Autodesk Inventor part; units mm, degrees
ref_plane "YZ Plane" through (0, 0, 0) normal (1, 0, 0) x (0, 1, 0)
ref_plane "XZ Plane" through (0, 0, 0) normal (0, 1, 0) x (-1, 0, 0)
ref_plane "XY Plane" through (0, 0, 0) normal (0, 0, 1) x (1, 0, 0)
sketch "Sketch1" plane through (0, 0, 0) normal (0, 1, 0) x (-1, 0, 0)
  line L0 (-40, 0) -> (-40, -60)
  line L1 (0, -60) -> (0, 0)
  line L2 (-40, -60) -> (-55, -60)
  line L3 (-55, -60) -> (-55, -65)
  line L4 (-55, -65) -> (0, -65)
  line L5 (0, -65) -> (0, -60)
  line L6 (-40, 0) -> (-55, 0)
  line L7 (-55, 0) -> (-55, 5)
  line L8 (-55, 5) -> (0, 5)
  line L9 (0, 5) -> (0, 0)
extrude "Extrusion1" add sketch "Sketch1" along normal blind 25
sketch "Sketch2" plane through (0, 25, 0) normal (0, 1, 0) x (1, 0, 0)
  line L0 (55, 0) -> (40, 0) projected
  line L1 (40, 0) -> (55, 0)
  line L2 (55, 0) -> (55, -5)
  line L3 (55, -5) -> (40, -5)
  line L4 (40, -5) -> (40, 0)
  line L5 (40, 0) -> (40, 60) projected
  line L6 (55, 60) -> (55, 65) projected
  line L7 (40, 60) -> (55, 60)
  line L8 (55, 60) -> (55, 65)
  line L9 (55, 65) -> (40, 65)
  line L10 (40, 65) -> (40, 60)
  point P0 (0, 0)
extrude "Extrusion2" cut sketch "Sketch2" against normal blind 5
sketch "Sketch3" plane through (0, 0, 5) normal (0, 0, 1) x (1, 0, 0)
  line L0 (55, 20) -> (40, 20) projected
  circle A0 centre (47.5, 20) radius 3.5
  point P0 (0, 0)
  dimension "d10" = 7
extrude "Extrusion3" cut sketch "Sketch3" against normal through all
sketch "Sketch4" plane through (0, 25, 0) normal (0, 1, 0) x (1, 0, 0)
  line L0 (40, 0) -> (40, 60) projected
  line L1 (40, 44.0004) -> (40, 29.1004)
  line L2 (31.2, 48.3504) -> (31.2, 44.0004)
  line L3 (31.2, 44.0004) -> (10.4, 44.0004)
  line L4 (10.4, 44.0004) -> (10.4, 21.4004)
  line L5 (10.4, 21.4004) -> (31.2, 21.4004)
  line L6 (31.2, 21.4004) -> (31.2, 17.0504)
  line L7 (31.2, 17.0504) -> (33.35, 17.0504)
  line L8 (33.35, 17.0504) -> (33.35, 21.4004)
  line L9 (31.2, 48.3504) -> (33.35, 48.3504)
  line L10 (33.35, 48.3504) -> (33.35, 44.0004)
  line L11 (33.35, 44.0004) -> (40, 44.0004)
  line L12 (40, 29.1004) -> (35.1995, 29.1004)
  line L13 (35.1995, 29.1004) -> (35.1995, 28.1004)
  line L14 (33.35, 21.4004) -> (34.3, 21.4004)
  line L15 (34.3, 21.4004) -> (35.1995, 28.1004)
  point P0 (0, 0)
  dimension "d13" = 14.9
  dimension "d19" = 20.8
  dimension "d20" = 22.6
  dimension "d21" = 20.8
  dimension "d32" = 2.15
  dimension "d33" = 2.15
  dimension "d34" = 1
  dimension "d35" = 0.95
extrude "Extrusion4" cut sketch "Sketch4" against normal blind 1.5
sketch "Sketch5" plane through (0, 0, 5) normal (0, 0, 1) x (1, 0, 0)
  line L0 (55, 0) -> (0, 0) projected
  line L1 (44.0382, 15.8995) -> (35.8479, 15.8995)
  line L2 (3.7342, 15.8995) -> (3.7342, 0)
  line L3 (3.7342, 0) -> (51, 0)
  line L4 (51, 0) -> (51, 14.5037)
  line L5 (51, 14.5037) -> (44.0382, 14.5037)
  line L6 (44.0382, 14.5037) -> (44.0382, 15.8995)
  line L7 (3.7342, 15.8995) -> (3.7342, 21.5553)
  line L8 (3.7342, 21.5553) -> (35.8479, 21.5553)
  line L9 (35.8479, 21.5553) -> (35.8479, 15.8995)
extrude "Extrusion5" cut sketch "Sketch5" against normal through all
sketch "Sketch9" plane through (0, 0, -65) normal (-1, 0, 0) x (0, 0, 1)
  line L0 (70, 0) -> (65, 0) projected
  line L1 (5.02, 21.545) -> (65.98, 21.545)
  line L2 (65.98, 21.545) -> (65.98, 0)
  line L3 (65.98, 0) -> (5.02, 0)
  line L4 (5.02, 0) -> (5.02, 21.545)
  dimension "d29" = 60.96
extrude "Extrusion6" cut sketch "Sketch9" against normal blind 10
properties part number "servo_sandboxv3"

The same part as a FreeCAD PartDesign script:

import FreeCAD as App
import Part
import Sketcher
Q = App.Units.Quantity

doc = App.newDocument("Part")
body = doc.addObject("PartDesign::Body", "Body")

# Sketch on XZ plane
sketch1 = body.newObject("Sketcher::SketchObject", "Sketch")
sketch1.AttachmentSupport = (doc.getObject("XZ_Plane"), [""])
sketch1.MapMode = "FlatFace"
sketch1.addGeometry([
    Part.LineSegment(App.Vector(55, 0, 0), App.Vector(40, 0, 0)),  # 0
    Part.LineSegment(App.Vector(40, 0, 0), App.Vector(40, -60, 0)),  # 1
    Part.LineSegment(App.Vector(40, -60, 0), App.Vector(55, -60, 0)),  # 2
    Part.LineSegment(App.Vector(55, -60, 0), App.Vector(55, -65, 0)),  # 3
    Part.LineSegment(App.Vector(55, -65, 0), App.Vector(0, -65, 0)),  # 4
    Part.LineSegment(App.Vector(0, -65, 0), App.Vector(0, 5, 0)),  # 5
    Part.LineSegment(App.Vector(0, 5, 0), App.Vector(55, 5, 0)),  # 6
    Part.LineSegment(App.Vector(55, 5, 0), App.Vector(55, 0, 0)),  # 7
], False)
sketch1.addConstraint([
    Sketcher.Constraint("Coincident", 0, 2, 1, 1),
    Sketcher.Constraint("Coincident", 1, 2, 2, 1),
    Sketcher.Constraint("Coincident", 2, 2, 3, 1),
    Sketcher.Constraint("Coincident", 3, 2, 4, 1),
    Sketcher.Constraint("Coincident", 4, 2, 5, 1),
    Sketcher.Constraint("Coincident", 5, 2, 6, 1),
    Sketcher.Constraint("Coincident", 6, 2, 7, 1),
    Sketcher.Constraint("Coincident", 7, 2, 0, 1),
    Sketcher.Constraint("Horizontal", 0),
    Sketcher.Constraint("Vertical", 1),
    Sketcher.Constraint("Horizontal", 2),
    Sketcher.Constraint("Vertical", 3),
    Sketcher.Constraint("Horizontal", 4),
    Sketcher.Constraint("Vertical", 5),
    Sketcher.Constraint("Horizontal", 6),
    Sketcher.Constraint("Vertical", 7),
    Sketcher.Constraint("PointOnObject", 0, 2, -1),
    Sketcher.Constraint("PointOnObject", 4, 2, -2),
    Sketcher.Constraint("Vertical", 3, 2, 6, 2),
    Sketcher.Constraint("Equal", 3, 7),
    Sketcher.Constraint("DistanceX", 0, 2, 0, 1, Q("15 mm")),
    Sketcher.Constraint("DistanceX", 4, 2, 4, 1, Q("55 mm")),
    Sketcher.Constraint("DistanceY", 1, 2, 1, 1, Q("60 mm")),
    Sketcher.Constraint("DistanceY", 3, 2, 3, 1, Q("5 mm")),
])
pad1 = body.newObject("PartDesign::Pad", "Pad")
pad1.Profile = sketch1
pad1.Length = 25
pad1.Reversed = True

# Sketch on XZ plane
sketch2 = body.newObject("Sketcher::SketchObject", "Sketch001")
sketch2.AttachmentSupport = (doc.getObject("XZ_Plane"), [""])
sketch2.MapMode = "FlatFace"
sketch2.AttachmentOffset = App.Placement(App.Vector(0, 0, -25), App.Rotation())
sketch2.addGeometry([
    Part.LineSegment(App.Vector(55, 5, 0), App.Vector(55, 0, 0)),  # 0
    Part.LineSegment(App.Vector(55, 0, 0), App.Vector(40, 0, 0)),  # 1
    Part.LineSegment(App.Vector(40, 0, 0), App.Vector(40, 5, 0)),  # 2
    Part.LineSegment(App.Vector(40, 5, 0), App.Vector(55, 5, 0)),  # 3
    Part.LineSegment(App.Vector(40, -65, 0), App.Vector(40, -60, 0)),  # 4
    Part.LineSegment(App.Vector(40, -60, 0), App.Vector(55, -60, 0)),  # 5
    Part.LineSegment(App.Vector(55, -60, 0), App.Vector(55, -65, 0)),  # 6
    Part.LineSegment(App.Vector(55, -65, 0), App.Vector(40, -65, 0)),  # 7
], False)
sketch2.addConstraint([
    Sketcher.Constraint("Coincident", 0, 2, 1, 1),
    Sketcher.Constraint("Coincident", 1, 2, 2, 1),
    Sketcher.Constraint("Coincident", 2, 2, 3, 1),
    Sketcher.Constraint("Coincident", 3, 2, 0, 1),
    Sketcher.Constraint("Coincident", 4, 2, 5, 1),
    Sketcher.Constraint("Coincident", 5, 2, 6, 1),
    Sketcher.Constraint("Coincident", 6, 2, 7, 1),
    Sketcher.Constraint("Coincident", 7, 2, 4, 1),
    Sketcher.Constraint("Vertical", 0),
    Sketcher.Constraint("Horizontal", 1),
    Sketcher.Constraint("Vertical", 2),
    Sketcher.Constraint("Horizontal", 3),
    Sketcher.Constraint("Vertical", 4),
    Sketcher.Constraint("Horizontal", 5),
    Sketcher.Constraint("Vertical", 6),
    Sketcher.Constraint("Horizontal", 7),
    Sketcher.Constraint("PointOnObject", 0, 2, -1),
    Sketcher.Constraint("Vertical", 2, 2, 4, 2),
    Sketcher.Constraint("Vertical", 3, 2, 5, 2),
    Sketcher.Constraint("Equal", 2, 4),
    Sketcher.Constraint("DistanceX", 1, 2, 1, 1, Q("15 mm")),
    Sketcher.Constraint("DistanceY", 0, 2, 0, 1, Q("5 mm")),
    Sketcher.Constraint("DistanceX", -1, 1, 0, 2, Q("55 mm")),
    Sketcher.Constraint("DistanceY", 4, 2, -1, 1, Q("60 mm")),
])
pocket1 = body.newObject("PartDesign::Pocket", "Pocket")
pocket1.Profile = sketch2
pocket1.Length = 5
pocket1.Reversed = True

# Sketch on XY plane
sketch3 = body.newObject("Sketcher::SketchObject", "Sketch002")
sketch3.AttachmentSupport = (doc.getObject("XY_Plane"), [""])
sketch3.MapMode = "FlatFace"
sketch3.AttachmentOffset = App.Placement(App.Vector(0, 0, 5), App.Rotation())
sketch3.addGeometry(Part.Circle(App.Vector(47.5, 20, 0), App.Vector(0, 0, 1), 3.5), False)
sketch3.addConstraint([
    Sketcher.Constraint("Diameter", 0, Q("7 mm")),
    Sketcher.Constraint("DistanceY", -1, 1, 0, 3, Q("20 mm")),
    Sketcher.Constraint("DistanceX", -1, 1, 0, 3, Q("47.5 mm")),
])
pocket2 = body.newObject("PartDesign::Pocket", "Pocket001")
pocket2.Profile = sketch3
pocket2.Type = "ThroughAll"

# Sketch on XZ plane
sketch4 = body.newObject("Sketcher::SketchObject", "Sketch003")
sketch4.AttachmentSupport = (doc.getObject("XZ_Plane"), [""])
sketch4.MapMode = "FlatFace"
sketch4.AttachmentOffset = App.Placement(App.Vector(0, 0, -25), App.Rotation())
sketch4.addGeometry([
    Part.LineSegment(App.Vector(35.2, -29.1, 0), App.Vector(40, -29.1, 0)),  # 0
    Part.LineSegment(App.Vector(40, -29.1, 0), App.Vector(40, -44, 0)),  # 1
    Part.LineSegment(App.Vector(40, -44, 0), App.Vector(33.4, -44, 0)),  # 2
    Part.LineSegment(App.Vector(33.4, -44, 0), App.Vector(33.4, -48.4, 0)),  # 3
    Part.LineSegment(App.Vector(33.4, -48.4, 0), App.Vector(31.2, -48.4, 0)),  # 4
    Part.LineSegment(App.Vector(31.2, -48.4, 0), App.Vector(31.2, -44, 0)),  # 5
    Part.LineSegment(App.Vector(31.2, -44, 0), App.Vector(10.4, -44, 0)),  # 6
    Part.LineSegment(App.Vector(10.4, -44, 0), App.Vector(10.4, -21.4, 0)),  # 7
    Part.LineSegment(App.Vector(10.4, -21.4, 0), App.Vector(31.2, -21.4, 0)),  # 8
    Part.LineSegment(App.Vector(31.2, -21.4, 0), App.Vector(31.2, -17.1, 0)),  # 9
    Part.LineSegment(App.Vector(31.2, -17.1, 0), App.Vector(33.4, -17.1, 0)),  # 10
    Part.LineSegment(App.Vector(33.4, -17.1, 0), App.Vector(33.4, -21.4, 0)),  # 11
    Part.LineSegment(App.Vector(33.4, -21.4, 0), App.Vector(34.3, -21.4, 0)),  # 12
    Part.LineSegment(App.Vector(34.3, -21.4, 0), App.Vector(35.2, -28.1, 0)),  # 13
    Part.LineSegment(App.Vector(35.2, -28.1, 0), App.Vector(35.2, -29.1, 0)),  # 14
], False)
sketch4.addConstraint([
    Sketcher.Constraint("Coincident", 0, 2, 1, 1),
    Sketcher.Constraint("Coincident", 1, 2, 2, 1),
    Sketcher.Constraint("Coincident", 2, 2, 3, 1),
    Sketcher.Constraint("Coincident", 3, 2, 4, 1),
    Sketcher.Constraint("Coincident", 4, 2, 5, 1),
    Sketcher.Constraint("Coincident", 5, 2, 6, 1),
    Sketcher.Constraint("Coincident", 6, 2, 7, 1),
    Sketcher.Constraint("Coincident", 7, 2, 8, 1),
    Sketcher.Constraint("Coincident", 8, 2, 9, 1),
    Sketcher.Constraint("Coincident", 9, 2, 10, 1),
    Sketcher.Constraint("Coincident", 10, 2, 11, 1),
    Sketcher.Constraint("Coincident", 11, 2, 12, 1),
    Sketcher.Constraint("Coincident", 12, 2, 13, 1),
    Sketcher.Constraint("Coincident", 13, 2, 14, 1),
    Sketcher.Constraint("Coincident", 14, 2, 0, 1),
    Sketcher.Constraint("Horizontal", 0),
    Sketcher.Constraint("Vertical", 1),
    Sketcher.Constraint("Horizontal", 2),
    Sketcher.Constraint("Vertical", 3),
    Sketcher.Constraint("Horizontal", 4),
    Sketcher.Constraint("Vertical", 5),
    Sketcher.Constraint("Horizontal", 6),
    Sketcher.Constraint("Vertical", 7),
    Sketcher.Constraint("Horizontal", 8),
    Sketcher.Constraint("Vertical", 9),
    Sketcher.Constraint("Horizontal", 10),
    Sketcher.Constraint("Vertical", 11),
    Sketcher.Constraint("Horizontal", 12),
    Sketcher.Constraint("Vertical", 14),
    Sketcher.Constraint("Horizontal", 2, 2, 5, 2),
    Sketcher.Constraint("Horizontal", 8, 2, 11, 2),
    Sketcher.Constraint("Vertical", 5, 2, 8, 2),
    Sketcher.Constraint("Vertical", 3, 2, 10, 2),
    Sketcher.Constraint("Equal", 5, 9),
    Sketcher.Constraint("DistanceY", 14, 2, 14, 1, Q("1 mm")),
    Sketcher.Constraint("DistanceX", 6, 2, 6, 1, Q("20.8 mm")),
    Sketcher.Constraint("DistanceY", 1, 2, 1, 1, Q("14.9 mm")),
    Sketcher.Constraint("DistanceY", 7, 1, 7, 2, Q("22.6 mm")),
    Sketcher.Constraint("DistanceX", 4, 2, 4, 1, Q("2.15 mm")),
    Sketcher.Constraint("DistanceX", 12, 1, 12, 2, Q("0.95 mm")),
    Sketcher.Constraint("DistanceX", -1, 1, 0, 2, Q("40 mm")),
    Sketcher.Constraint("DistanceX", 2, 2, 2, 1, Q("6.65 mm")),
    Sketcher.Constraint("DistanceY", 3, 2, 3, 1, Q("4.35 mm")),
    Sketcher.Constraint("Distance", 13, Q("6.76 mm")),
    Sketcher.Constraint("DistanceY", 0, 2, -1, 1, Q("29.1004 mm")),
])
pocket3 = body.newObject("PartDesign::Pocket", "Pocket002")
pocket3.Profile = sketch4
pocket3.Length = 1.5
pocket3.Reversed = True

# Sketch on XY plane
sketch5 = body.newObject("Sketcher::SketchObject", "Sketch004")
sketch5.AttachmentSupport = (doc.getObject("XY_Plane"), [""])
sketch5.MapMode = "FlatFace"
sketch5.AttachmentOffset = App.Placement(App.Vector(0, 0, 5), App.Rotation())
sketch5.addGeometry([
    Part.LineSegment(App.Vector(3.7, 0, 0), App.Vector(51, 0, 0)),  # 0
    Part.LineSegment(App.Vector(51, 0, 0), App.Vector(51, 14.5, 0)),  # 1
    Part.LineSegment(App.Vector(51, 14.5, 0), App.Vector(44, 14.5, 0)),  # 2
    Part.LineSegment(App.Vector(44, 14.5, 0), App.Vector(44, 15.9, 0)),  # 3
    Part.LineSegment(App.Vector(44, 15.9, 0), App.Vector(35.8, 15.9, 0)),  # 4
    Part.LineSegment(App.Vector(35.8, 15.9, 0), App.Vector(35.8, 21.6, 0)),  # 5
    Part.LineSegment(App.Vector(35.8, 21.6, 0), App.Vector(3.7, 21.6, 0)),  # 6
    Part.LineSegment(App.Vector(3.7, 21.6, 0), App.Vector(3.7, 0, 0)),  # 7
], False)
sketch5.addConstraint([
    Sketcher.Constraint("Coincident", 0, 2, 1, 1),
    Sketcher.Constraint("Coincident", 1, 2, 2, 1),
    Sketcher.Constraint("Coincident", 2, 2, 3, 1),
    Sketcher.Constraint("Coincident", 3, 2, 4, 1),
    Sketcher.Constraint("Coincident", 4, 2, 5, 1),
    Sketcher.Constraint("Coincident", 5, 2, 6, 1),
    Sketcher.Constraint("Coincident", 6, 2, 7, 1),
    Sketcher.Constraint("Coincident", 7, 2, 0, 1),
    Sketcher.Constraint("Horizontal", 0),
    Sketcher.Constraint("Vertical", 1),
    Sketcher.Constraint("Horizontal", 2),
    Sketcher.Constraint("Vertical", 3),
    Sketcher.Constraint("Horizontal", 4),
    Sketcher.Constraint("Vertical", 5),
    Sketcher.Constraint("Horizontal", 6),
    Sketcher.Constraint("Vertical", 7),
    Sketcher.Constraint("PointOnObject", 0, 2, -1),
    Sketcher.Constraint("DistanceX", -1, 1, 0, 2, Q("51 mm")),
    Sketcher.Constraint("DistanceX", 0, 1, 0, 2, Q("47.2658 mm")),
    Sketcher.Constraint("DistanceX", 2, 2, 2, 1, Q("6.9618 mm")),
    Sketcher.Constraint("DistanceX", 4, 2, 4, 1, Q("8.1903 mm")),
    Sketcher.Constraint("DistanceY", 1, 1, 1, 2, Q("14.5037 mm")),
    Sketcher.Constraint("DistanceY", 3, 1, 3, 2, Q("1.3958 mm")),
    Sketcher.Constraint("DistanceY", 5, 1, 5, 2, Q("5.6558 mm")),
])
pocket4 = body.newObject("PartDesign::Pocket", "Pocket003")
pocket4.Profile = sketch5
pocket4.Type = "ThroughAll"

# Sketch on YZ plane
sketch6 = body.newObject("Sketcher::SketchObject", "Sketch005")
sketch6.AttachmentSupport = (doc.getObject("YZ_Plane"), [""])
sketch6.MapMode = "FlatFace"
sketch6.addGeometry([
    Part.LineSegment(App.Vector(0, -60, 0), App.Vector(0, 1, 0)),
    Part.LineSegment(App.Vector(0, 1, 0), App.Vector(22, 1, 0)),
    Part.LineSegment(App.Vector(22, 1, 0), App.Vector(22, -60, 0)),
    Part.LineSegment(App.Vector(22, -60, 0), App.Vector(0, -60, 0)),
], False)
sketch6.addConstraint([
    Sketcher.Constraint("Coincident", 0, 2, 1, 1),
    Sketcher.Constraint("Coincident", 1, 2, 2, 1),
    Sketcher.Constraint("Coincident", 2, 2, 3, 1),
    Sketcher.Constraint("Coincident", 3, 2, 0, 1),
    Sketcher.Constraint("Vertical", 0),
    Sketcher.Constraint("Horizontal", 1),
    Sketcher.Constraint("Vertical", 2),
    Sketcher.Constraint("Horizontal", 3),
    Sketcher.Constraint("PointOnObject", 0, 2, -2),
    Sketcher.Constraint("DistanceY", 0, 1, 0, 2, Q("60.96 mm")),
    Sketcher.Constraint("DistanceX", 1, 1, 1, 2, Q("21.545 mm")),
    Sketcher.Constraint("DistanceY", -1, 1, 0, 2, Q("0.98 mm")),
])
pocket5 = body.newObject("PartDesign::Pocket", "Pocket004")
pocket5.Profile = sketch6
pocket5.Length = 10
pocket5.Reversed = True

doc.recompute()
